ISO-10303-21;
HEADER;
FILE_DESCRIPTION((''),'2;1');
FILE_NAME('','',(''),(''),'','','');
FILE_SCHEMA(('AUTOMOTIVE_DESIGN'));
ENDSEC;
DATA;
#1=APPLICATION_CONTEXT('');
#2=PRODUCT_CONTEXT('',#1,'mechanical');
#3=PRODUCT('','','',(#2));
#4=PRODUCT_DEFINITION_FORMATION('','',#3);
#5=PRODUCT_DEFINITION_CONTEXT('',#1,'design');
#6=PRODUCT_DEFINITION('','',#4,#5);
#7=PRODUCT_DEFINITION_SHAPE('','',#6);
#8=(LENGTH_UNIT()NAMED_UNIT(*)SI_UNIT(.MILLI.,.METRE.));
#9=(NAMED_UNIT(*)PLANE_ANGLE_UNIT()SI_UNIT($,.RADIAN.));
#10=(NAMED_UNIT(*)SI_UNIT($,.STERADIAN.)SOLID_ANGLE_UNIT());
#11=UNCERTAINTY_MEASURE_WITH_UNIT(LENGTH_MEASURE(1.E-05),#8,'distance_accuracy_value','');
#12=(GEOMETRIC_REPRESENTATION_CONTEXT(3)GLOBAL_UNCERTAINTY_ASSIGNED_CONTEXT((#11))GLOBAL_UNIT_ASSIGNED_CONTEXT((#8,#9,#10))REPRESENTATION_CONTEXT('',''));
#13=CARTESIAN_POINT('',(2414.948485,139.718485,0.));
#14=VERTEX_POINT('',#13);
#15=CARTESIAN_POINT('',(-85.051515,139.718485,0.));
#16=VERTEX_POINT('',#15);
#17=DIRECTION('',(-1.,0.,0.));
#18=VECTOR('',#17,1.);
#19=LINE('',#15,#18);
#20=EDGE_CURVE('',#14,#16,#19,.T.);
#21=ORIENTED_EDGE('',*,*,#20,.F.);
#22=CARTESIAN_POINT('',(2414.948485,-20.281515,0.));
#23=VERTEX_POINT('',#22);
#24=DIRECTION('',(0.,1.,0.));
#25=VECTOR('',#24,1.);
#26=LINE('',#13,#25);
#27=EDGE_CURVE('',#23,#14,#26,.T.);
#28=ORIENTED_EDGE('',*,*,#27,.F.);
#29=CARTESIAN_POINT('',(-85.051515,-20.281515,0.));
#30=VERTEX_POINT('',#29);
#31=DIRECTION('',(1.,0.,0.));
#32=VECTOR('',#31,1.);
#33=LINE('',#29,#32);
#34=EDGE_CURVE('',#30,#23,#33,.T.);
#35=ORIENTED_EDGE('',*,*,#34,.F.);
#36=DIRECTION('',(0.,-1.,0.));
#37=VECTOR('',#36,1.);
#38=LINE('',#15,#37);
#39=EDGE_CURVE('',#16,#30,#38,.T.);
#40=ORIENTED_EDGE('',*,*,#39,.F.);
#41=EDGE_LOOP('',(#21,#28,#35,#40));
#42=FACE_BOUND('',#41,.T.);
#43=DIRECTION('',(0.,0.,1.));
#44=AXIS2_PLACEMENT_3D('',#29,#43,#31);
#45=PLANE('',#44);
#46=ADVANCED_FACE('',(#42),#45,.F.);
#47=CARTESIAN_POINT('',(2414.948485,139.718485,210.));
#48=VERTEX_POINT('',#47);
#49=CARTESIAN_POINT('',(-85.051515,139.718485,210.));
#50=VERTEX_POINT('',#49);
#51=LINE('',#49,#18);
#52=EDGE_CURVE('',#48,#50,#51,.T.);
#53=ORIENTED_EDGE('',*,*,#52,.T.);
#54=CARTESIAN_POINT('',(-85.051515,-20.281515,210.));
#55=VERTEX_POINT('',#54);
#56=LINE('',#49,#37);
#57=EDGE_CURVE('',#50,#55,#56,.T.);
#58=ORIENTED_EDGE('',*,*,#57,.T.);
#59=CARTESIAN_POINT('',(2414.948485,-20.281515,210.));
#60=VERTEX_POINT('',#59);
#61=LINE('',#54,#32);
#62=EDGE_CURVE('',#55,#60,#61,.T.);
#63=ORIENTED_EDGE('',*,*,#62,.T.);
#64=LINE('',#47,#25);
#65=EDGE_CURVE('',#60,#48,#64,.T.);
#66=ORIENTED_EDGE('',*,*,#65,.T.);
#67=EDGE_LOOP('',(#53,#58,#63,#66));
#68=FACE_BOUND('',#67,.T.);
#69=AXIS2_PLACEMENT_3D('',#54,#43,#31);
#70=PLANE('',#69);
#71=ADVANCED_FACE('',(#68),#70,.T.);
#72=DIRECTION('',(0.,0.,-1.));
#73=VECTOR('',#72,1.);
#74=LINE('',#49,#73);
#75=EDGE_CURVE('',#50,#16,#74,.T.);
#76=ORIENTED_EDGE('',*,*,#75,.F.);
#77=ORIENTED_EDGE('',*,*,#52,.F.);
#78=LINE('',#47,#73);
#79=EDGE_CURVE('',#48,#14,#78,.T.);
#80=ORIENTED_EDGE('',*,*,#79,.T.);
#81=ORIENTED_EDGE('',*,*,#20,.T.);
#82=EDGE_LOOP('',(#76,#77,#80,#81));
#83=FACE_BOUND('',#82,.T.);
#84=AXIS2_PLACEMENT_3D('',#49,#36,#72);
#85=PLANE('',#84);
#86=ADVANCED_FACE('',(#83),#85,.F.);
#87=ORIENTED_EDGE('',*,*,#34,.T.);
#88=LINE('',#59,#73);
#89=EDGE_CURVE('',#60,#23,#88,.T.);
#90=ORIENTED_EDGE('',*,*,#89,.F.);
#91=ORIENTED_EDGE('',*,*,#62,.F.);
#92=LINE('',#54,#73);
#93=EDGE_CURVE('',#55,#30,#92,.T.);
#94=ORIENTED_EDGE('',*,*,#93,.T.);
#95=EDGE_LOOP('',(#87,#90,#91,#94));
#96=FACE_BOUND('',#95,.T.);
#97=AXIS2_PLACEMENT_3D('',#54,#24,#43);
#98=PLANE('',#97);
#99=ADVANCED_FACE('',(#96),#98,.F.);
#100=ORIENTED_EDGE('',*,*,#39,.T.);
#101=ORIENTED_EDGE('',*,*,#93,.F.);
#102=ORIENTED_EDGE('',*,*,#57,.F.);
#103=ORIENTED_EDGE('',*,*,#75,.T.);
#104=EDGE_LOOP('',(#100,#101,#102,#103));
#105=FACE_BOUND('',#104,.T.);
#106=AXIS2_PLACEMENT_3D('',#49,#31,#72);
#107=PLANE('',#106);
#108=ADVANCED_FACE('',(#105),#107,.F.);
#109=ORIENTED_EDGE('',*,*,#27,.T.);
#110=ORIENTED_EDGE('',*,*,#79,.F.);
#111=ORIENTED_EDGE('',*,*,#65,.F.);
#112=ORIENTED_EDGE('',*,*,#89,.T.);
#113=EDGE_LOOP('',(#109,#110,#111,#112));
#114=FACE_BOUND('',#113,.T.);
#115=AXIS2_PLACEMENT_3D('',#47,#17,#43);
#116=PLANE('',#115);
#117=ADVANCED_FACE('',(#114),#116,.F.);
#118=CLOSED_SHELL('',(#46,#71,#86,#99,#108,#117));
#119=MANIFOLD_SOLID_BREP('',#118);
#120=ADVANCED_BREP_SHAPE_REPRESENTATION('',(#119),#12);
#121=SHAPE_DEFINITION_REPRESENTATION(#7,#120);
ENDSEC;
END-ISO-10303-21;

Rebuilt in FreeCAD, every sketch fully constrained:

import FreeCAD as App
import Part
import Sketcher
Q = App.Units.Quantity

doc = App.newDocument("Part")
params = doc.addObject("Spreadsheet::Sheet", "Params")
for row, (alias, value) in enumerate([
    ("sketch1_width", "2500 mm"),
    ("sketch1_height", "160 mm"),
    ("pad1_length", "210 mm"),
], start=1):
    params.set(f"A{row}", alias)
    params.set(f"B{row}", "=" + value)
    params.setAlias(f"B{row}", alias)

body = doc.addObject("PartDesign::Body", "Body")

# Sketch on XY plane
sketch1 = doc.addObject("Sketcher::SketchObject", "Sketch")
body.addObject(sketch1)
sketch1.AttachmentSupport = (doc.XY_Plane, [""])
sketch1.MapMode = "FlatFace"
sketch1.addGeometry(Part.LineSegment(App.Vector(-85, 140, 0), App.Vector(-85, -20, 0)), False)
sketch1.addGeometry(Part.LineSegment(App.Vector(-85, -20, 0), App.Vector(2415, -20, 0)), False)
sketch1.addGeometry(Part.LineSegment(App.Vector(2415, -20, 0), App.Vector(2415, 140, 0)), False)
sketch1.addGeometry(Part.LineSegment(App.Vector(2415, 140, 0), App.Vector(-85, 140, 0)), False)
sketch1.addConstraint(Sketcher.Constraint("Coincident", 0, 2, 1, 1))
sketch1.addConstraint(Sketcher.Constraint("Coincident", 1, 2, 2, 1))
sketch1.addConstraint(Sketcher.Constraint("Coincident", 2, 2, 3, 1))
sketch1.addConstraint(Sketcher.Constraint("Coincident", 3, 2, 0, 1))
sketch1.addConstraint(Sketcher.Constraint("Vertical", 0))
sketch1.addConstraint(Sketcher.Constraint("Horizontal", 1))
sketch1.addConstraint(Sketcher.Constraint("Vertical", 2))
sketch1.addConstraint(Sketcher.Constraint("Horizontal", 3))
sketch1.addConstraint(Sketcher.Constraint("DistanceX", 1, 1, 1, 2, Q("2500 mm")))
sketch1.addConstraint(Sketcher.Constraint("DistanceY", 0, 2, 0, 1, Q("160 mm")))
sketch1.addConstraint(Sketcher.Constraint("DistanceX", 0, 2, -1, 1, Q("85.051515 mm")))
sketch1.addConstraint(Sketcher.Constraint("DistanceY", 0, 2, -1, 1, Q("20.281515 mm")))
sketch1.setExpression("Constraints[8]", "Params.sketch1_width")
sketch1.setExpression("Constraints[9]", "Params.sketch1_height")
pad1 = doc.addObject("PartDesign::Pad", "Pad")
body.addObject(pad1)
pad1.Profile = sketch1
pad1.setExpression("Length", "Params.pad1_length")

doc.recompute()
